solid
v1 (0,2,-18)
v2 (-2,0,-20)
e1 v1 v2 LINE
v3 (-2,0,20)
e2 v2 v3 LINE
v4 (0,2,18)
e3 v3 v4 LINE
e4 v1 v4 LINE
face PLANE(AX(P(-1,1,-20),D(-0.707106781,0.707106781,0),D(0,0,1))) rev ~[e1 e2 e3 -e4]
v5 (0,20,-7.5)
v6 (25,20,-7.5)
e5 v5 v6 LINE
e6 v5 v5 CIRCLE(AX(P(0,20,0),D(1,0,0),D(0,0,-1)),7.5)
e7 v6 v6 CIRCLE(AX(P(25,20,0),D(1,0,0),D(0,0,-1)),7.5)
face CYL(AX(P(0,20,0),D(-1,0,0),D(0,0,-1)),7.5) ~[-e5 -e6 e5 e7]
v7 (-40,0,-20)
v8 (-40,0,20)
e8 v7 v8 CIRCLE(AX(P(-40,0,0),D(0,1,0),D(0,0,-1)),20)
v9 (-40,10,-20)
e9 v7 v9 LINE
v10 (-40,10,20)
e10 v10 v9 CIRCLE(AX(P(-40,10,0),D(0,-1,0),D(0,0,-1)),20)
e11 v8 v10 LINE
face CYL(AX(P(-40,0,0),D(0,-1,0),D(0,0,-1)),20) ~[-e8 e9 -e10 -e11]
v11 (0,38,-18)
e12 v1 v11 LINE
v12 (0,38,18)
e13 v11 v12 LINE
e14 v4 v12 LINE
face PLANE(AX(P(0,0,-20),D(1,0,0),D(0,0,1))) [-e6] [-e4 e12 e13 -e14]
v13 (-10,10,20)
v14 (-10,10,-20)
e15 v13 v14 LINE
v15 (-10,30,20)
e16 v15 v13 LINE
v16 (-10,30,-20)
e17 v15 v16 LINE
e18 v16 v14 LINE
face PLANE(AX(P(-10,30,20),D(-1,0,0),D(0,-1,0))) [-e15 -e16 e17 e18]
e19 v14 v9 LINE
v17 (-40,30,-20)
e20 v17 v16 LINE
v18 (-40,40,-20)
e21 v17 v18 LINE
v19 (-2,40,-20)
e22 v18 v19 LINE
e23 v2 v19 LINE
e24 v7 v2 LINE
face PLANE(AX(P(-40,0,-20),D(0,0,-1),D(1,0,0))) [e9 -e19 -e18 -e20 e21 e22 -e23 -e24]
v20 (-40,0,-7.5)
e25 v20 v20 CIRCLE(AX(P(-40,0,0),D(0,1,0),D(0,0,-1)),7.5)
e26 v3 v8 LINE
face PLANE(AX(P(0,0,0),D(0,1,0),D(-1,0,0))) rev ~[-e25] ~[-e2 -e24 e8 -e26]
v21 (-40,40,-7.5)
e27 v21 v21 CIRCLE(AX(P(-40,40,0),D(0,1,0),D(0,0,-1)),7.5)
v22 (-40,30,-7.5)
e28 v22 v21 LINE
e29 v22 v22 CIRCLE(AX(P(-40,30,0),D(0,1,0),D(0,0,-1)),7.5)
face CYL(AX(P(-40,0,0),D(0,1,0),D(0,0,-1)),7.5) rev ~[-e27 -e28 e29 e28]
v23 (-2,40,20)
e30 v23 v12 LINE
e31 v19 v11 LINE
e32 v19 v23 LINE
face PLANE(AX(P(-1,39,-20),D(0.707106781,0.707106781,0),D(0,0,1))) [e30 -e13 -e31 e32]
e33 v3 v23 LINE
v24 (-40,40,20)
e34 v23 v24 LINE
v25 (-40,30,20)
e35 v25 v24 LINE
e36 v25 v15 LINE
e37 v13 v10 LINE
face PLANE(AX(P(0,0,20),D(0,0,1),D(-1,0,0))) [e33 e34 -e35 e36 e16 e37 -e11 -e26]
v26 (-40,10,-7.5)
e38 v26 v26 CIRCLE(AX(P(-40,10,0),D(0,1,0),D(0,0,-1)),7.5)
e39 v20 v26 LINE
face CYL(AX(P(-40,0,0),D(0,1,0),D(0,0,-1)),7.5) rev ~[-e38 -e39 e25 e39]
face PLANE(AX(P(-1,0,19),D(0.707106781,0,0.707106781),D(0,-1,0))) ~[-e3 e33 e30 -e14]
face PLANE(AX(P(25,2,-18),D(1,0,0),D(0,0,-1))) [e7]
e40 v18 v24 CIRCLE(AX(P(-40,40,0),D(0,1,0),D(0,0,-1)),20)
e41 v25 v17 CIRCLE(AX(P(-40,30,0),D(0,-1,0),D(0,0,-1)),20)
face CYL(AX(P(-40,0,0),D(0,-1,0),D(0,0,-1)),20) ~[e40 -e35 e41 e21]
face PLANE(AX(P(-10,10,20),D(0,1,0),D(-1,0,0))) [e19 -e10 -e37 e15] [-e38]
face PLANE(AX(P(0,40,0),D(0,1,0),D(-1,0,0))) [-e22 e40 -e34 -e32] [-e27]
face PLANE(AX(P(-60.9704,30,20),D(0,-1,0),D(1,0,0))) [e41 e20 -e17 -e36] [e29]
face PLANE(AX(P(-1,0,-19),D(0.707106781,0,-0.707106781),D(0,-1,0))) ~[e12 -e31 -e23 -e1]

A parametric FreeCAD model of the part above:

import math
import FreeCAD as App
import Part
import Sketcher


def edges_at(feature, points):
    """Names of the edges that pass closest to the given points."""
    edges = feature.Shape.Edges
    near = lambda p: min(range(len(edges)), key=lambda i: edges[i].distToShape(Part.Vertex(*p))[0])
    return sorted({f"Edge{near(p) + 1}" for p in points})

doc = App.newDocument("Part")
body = doc.addObject("PartDesign::Body", "Body")

sketch1 = body.newObject("Sketcher::SketchObject", "Sketch")
sketch1.AttachmentSupport = (doc.getObject("XZ_Plane"), [""])
sketch1.MapMode = "FlatFace"
sketch1.addGeometry([
    Part.LineSegment(App.Vector(-40, 20, 0), App.Vector(0, 20, 0)),
    Part.LineSegment(App.Vector(0, 20, 0), App.Vector(0, -20, 0)),
    Part.LineSegment(App.Vector(0, -20, 0), App.Vector(-40, -20, 0)),
    Part.ArcOfCircle(Part.Circle(App.Vector(-40, 0, 0), App.Vector(0, 0, 1), 20), math.radians(90), math.radians(270)),
], False)
sketch1.addConstraint([
    Sketcher.Constraint("Coincident", 0, 2, 1, 1),
    Sketcher.Constraint("Coincident", 1, 2, 2, 1),
    Sketcher.Constraint("Tangent", 2, 2, 3, 2),
    Sketcher.Constraint("Tangent", 3, 1, 0, 1),
    Sketcher.Constraint("Horizontal", 0),
    Sketcher.Constraint("Vertical", 1),
    Sketcher.Constraint("Horizontal", 2),
    Sketcher.Constraint("Symmetric", 0, 2, 1, 2, -1, 1),
    Sketcher.Constraint("Equal", 2, 1),
    Sketcher.Constraint("Radius", 3, 20.0),
])
pad1 = body.newObject("PartDesign::Pad", "Pad")
pad1.Profile = sketch1
pad1.Length = 40
pad1.Reversed = True

sketch2 = body.newObject("Sketcher::SketchObject", "Sketch001")
sketch2.AttachmentSupport = (doc.getObject("XZ_Plane"), [""])
sketch2.MapMode = "FlatFace"
sketch2.addGeometry(Part.Circle(App.Vector(-40, 0, 0), App.Vector(0, 0, 1), 7.5), False)
sketch2.addConstraint([
    Sketcher.Constraint("PointOnObject", 0, 3, -1),
    Sketcher.Constraint("Diameter", 0, 15.0),
    Sketcher.Constraint("DistanceX", 0, 3, -1, 1, 40.0),
])
doc.recompute()
hole = body.newObject("PartDesign::Hole", "Hole")
hole.Profile = sketch2
hole.ThreadType = "None"
hole.Diameter = 15
hole.DepthType = "Dimension"
hole.Depth = 40
hole.DrillPoint = "Flat"

sketch3 = body.newObject("Sketcher::SketchObject", "Sketch002")
sketch3.AttachmentSupport = (doc.getObject("XY_Plane"), [""])
sketch3.MapMode = "FlatFace"
sketch3.AttachmentOffset = App.Placement(App.Vector(0, 0, 20), App.Rotation())
sketch3.addGeometry([
    Part.LineSegment(App.Vector(-60.9704, 10, 0), App.Vector(-10, 10, 0)),
    Part.LineSegment(App.Vector(-10, 10, 0), App.Vector(-10, 30, 0)),
    Part.LineSegment(App.Vector(-10, 30, 0), App.Vector(-60.9704, 30, 0)),
    Part.LineSegment(App.Vector(-60.9704, 30, 0), App.Vector(-60.9704, 10, 0)),
], False)
sketch3.addConstraint([
    Sketcher.Constraint("Coincident", 0, 2, 1, 1),
    Sketcher.Constraint("Coincident", 1, 2, 2, 1),
    Sketcher.Constraint("Coincident", 2, 2, 3, 1),
    Sketcher.Constraint("Coincident", 3, 2, 0, 1),
    Sketcher.Constraint("Horizontal", 0),
    Sketcher.Constraint("Vertical", 1),
    Sketcher.Constraint("Horizontal", 2),
    Sketcher.Constraint("Vertical", 3),
    Sketcher.Constraint("DistanceY", 1, 1, 1, 2, 20.0),
    Sketcher.Constraint("DistanceX", 0, 2, -1, 1, 10.0),
    Sketcher.Constraint("DistanceY", -1, 1, 0, 2, 10.0),
    Sketcher.Constraint("DistanceX", 0, 1, 0, 2, 50.9704),
])
pocket1 = body.newObject("PartDesign::Pocket", "Pocket")
pocket1.Profile = sketch3
pocket1.Length = 40
doc.recompute()

chamfer = body.newObject("PartDesign::Chamfer", "Chamfer")
chamfer.Base = (pocket1, edges_at(pocket1, [
    (0, 20, 20),
    (0, 40, 0),
    (0, 20, -20),
    (0, 0, 0),
]))
chamfer.Size = 2

sketch4 = body.newObject("Sketcher::SketchObject", "Sketch003")
sketch4.AttachmentSupport = (doc.getObject("YZ_Plane"), [""])
sketch4.MapMode = "FlatFace"
sketch4.addGeometry(Part.Circle(App.Vector(20, 0, 0), App.Vector(0, 0, 1), 7.5), False)
sketch4.addConstraint([
    Sketcher.Constraint("PointOnObject", 0, 3, -1),
    Sketcher.Constraint("Diameter", 0, 15.0),
    Sketcher.Constraint("DistanceX", -1, 1, 0, 3, 20.0),
])
pad2 = body.newObject("PartDesign::Pad", "Pad001")
pad2.Profile = sketch4
pad2.Length = 25

doc.recompute()
